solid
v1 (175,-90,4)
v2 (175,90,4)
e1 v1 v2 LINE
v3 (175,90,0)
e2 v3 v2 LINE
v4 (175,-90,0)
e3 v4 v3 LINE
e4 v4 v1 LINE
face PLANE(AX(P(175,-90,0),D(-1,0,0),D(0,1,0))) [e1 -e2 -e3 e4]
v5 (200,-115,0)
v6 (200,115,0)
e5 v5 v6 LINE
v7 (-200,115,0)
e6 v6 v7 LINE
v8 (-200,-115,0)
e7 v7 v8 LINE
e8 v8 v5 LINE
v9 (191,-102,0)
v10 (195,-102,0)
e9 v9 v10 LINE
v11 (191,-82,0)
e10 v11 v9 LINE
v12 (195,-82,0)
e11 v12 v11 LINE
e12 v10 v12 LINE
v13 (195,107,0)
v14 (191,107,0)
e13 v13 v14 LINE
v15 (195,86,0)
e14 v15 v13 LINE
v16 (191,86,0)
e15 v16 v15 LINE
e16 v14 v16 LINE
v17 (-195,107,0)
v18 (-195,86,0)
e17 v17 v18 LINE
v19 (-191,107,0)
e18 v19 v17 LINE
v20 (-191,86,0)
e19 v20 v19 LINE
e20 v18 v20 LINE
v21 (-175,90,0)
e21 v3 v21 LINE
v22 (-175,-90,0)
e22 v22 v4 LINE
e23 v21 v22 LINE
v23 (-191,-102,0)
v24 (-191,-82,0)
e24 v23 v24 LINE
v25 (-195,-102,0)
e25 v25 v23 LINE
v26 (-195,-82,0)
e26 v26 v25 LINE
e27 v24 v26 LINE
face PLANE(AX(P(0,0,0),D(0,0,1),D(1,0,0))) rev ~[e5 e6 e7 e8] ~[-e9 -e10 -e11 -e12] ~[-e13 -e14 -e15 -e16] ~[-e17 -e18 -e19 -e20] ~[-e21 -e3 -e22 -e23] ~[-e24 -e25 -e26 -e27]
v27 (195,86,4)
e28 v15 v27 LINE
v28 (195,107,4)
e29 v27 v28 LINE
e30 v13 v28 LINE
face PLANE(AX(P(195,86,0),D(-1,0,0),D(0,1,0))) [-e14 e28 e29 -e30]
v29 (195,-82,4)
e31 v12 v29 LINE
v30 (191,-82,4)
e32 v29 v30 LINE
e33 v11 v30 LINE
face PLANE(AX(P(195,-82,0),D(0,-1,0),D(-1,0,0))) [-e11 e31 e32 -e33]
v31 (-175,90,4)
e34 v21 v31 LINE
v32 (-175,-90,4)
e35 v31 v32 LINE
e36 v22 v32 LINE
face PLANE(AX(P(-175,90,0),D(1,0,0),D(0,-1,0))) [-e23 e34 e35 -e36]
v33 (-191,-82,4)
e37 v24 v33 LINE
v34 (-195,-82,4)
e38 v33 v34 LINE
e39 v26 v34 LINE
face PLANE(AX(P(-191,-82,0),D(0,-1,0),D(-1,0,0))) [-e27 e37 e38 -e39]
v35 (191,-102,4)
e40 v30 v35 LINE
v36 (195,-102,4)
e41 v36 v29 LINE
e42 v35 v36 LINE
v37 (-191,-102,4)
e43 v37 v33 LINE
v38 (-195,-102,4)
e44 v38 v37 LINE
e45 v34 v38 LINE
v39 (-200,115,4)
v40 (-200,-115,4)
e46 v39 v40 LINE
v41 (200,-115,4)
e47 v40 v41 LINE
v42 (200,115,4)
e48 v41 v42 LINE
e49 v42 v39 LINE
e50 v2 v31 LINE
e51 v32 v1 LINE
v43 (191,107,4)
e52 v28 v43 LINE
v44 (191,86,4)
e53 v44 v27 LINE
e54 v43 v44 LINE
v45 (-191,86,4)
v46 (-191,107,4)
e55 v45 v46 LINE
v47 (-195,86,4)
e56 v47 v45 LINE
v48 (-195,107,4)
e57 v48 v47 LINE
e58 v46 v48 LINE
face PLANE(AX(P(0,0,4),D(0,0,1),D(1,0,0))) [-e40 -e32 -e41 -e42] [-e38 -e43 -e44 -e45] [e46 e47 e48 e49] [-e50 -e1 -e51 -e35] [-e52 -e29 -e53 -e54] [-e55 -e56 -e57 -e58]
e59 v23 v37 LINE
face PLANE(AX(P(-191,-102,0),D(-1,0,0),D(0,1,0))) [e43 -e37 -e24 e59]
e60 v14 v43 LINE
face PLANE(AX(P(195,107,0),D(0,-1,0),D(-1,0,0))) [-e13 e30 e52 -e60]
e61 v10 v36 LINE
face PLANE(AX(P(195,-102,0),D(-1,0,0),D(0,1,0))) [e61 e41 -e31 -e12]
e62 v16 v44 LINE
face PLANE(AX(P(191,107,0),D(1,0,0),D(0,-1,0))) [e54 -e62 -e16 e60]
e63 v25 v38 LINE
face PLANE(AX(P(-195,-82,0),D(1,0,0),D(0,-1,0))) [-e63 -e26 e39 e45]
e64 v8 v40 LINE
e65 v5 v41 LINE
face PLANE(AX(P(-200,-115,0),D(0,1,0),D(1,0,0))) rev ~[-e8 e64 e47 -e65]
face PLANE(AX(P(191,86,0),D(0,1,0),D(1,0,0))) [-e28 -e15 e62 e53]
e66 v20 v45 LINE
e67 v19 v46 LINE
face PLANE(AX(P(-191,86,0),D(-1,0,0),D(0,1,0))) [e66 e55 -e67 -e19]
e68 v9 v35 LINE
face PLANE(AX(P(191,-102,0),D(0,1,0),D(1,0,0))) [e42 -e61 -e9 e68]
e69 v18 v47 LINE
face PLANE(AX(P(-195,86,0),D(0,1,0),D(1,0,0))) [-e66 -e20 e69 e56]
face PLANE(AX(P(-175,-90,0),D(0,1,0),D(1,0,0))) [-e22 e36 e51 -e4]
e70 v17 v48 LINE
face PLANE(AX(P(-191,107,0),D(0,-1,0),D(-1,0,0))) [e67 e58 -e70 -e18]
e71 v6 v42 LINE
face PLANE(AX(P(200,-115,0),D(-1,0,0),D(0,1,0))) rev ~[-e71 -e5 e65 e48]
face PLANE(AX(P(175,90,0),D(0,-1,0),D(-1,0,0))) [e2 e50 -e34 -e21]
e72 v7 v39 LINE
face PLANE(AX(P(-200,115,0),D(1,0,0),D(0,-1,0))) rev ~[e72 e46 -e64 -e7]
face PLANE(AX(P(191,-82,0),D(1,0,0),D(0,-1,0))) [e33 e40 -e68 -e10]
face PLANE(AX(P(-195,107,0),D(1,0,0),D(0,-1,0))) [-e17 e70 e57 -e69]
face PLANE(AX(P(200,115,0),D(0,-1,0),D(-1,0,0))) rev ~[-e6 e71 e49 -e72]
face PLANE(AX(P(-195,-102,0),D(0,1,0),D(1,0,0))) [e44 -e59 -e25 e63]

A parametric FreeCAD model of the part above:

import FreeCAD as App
import Part
import Sketcher
from FreeCAD import Vector


def add_polygon(sketch, points):
    """Adds a closed chain of lines whose ends are joined by coincident constraints."""
    first, n = sketch.GeometryCount, len(points)
    for a, b in zip(points, points[1:] + points[:1]):
        sketch.addGeometry(Part.LineSegment(App.Vector(*a, 0), App.Vector(*b, 0)), False)
    for i in range(n):
        sketch.addConstraint(Sketcher.Constraint("Coincident", first + i, 2, first + (i + 1) % n, 1))

doc = App.newDocument("Part")
params = doc.addObject("Spreadsheet::Sheet", "Params")
for row, (alias, value) in enumerate([
    ("sketch1_width", "400 mm"),
    ("sketch1_width2", "4 mm"),
    ("sketch1_width3", "350 mm"),
    ("sketch1_height", "230 mm"),
    ("sketch1_height2", "20 mm"),
    ("pad1_length", "4 mm"),
], start=1):
    params.set(f"A{row}", alias)
    params.set(f"B{row}", "=" + value)
    params.setAlias(f"B{row}", alias)

body = doc.addObject("PartDesign::Body", "Body")

# Sketch on XY plane
sketch1 = body.newObject("Sketcher::SketchObject", "Sketch")
sketch1.AttachmentSupport = (doc.getObject("XY_Plane"), [""])
sketch1.MapMode = "FlatFace"
add_polygon(sketch1, [(200, -115), (200, 115), (-200, 115), (-200, -115)])  # lines 0-3
add_polygon(sketch1, [(-195, -102), (-195, -82), (-191, -82), (-191, -102)])  # lines 4-7
add_polygon(sketch1, [(191, -82), (195, -82), (195, -102), (191, -102)])  # lines 8-11
add_polygon(sketch1, [(-195, 86), (-195, 107), (-191, 107), (-191, 86)])  # lines 12-15
add_polygon(sketch1, [(-175, 90), (175, 90), (175, -90), (-175, -90)])  # lines 16-19
add_polygon(sketch1, [(191, 86), (191, 107), (195, 107), (195, 86)])  # lines 20-23
sketch1.addConstraint(Sketcher.Constraint("Vertical", 0))
sketch1.addConstraint(Sketcher.Constraint("Horizontal", 1))
sketch1.addConstraint(Sketcher.Constraint("Vertical", 2))
sketch1.addConstraint(Sketcher.Constraint("Horizontal", 3))
sketch1.addConstraint(Sketcher.Constraint("Vertical", 4))
sketch1.addConstraint(Sketcher.Constraint("Horizontal", 5))
sketch1.addConstraint(Sketcher.Constraint("Vertical", 6))
sketch1.addConstraint(Sketcher.Constraint("Horizontal", 7))
sketch1.addConstraint(Sketcher.Constraint("Horizontal", 8))
sketch1.addConstraint(Sketcher.Constraint("Vertical", 9))
sketch1.addConstraint(Sketcher.Constraint("Horizontal", 10))
sketch1.addConstraint(Sketcher.Constraint("Vertical", 11))
sketch1.addConstraint(Sketcher.Constraint("Vertical", 12))
sketch1.addConstraint(Sketcher.Constraint("Horizontal", 13))
sketch1.addConstraint(Sketcher.Constraint("Vertical", 14))
sketch1.addConstraint(Sketcher.Constraint("Horizontal", 15))
sketch1.addConstraint(Sketcher.Constraint("Horizontal", 16))
sketch1.addConstraint(Sketcher.Constraint("Vertical", 17))
sketch1.addConstraint(Sketcher.Constraint("Horizontal", 18))
sketch1.addConstraint(Sketcher.Constraint("Vertical", 19))
sketch1.addConstraint(Sketcher.Constraint("Vertical", 20))
sketch1.addConstraint(Sketcher.Constraint("Horizontal", 21))
sketch1.addConstraint(Sketcher.Constraint("Vertical", 22))
sketch1.addConstraint(Sketcher.Constraint("Horizontal", 23))
sketch1.addConstraint(Sketcher.Constraint("Symmetric", 0, 2, 2, 2, -1, 1))
sketch1.addConstraint(Sketcher.Constraint("Symmetric", 16, 2, 18, 2, -1, 1))
sketch1.addConstraint(Sketcher.Constraint("Symmetric", 4, 2, 8, 2, -2))
sketch1.addConstraint(Sketcher.Constraint("Symmetric", 6, 2, 10, 2, -2))
sketch1.addConstraint(Sketcher.Constraint("Symmetric", 13, 2, 20, 2, -2))
sketch1.addConstraint(Sketcher.Constraint("Symmetric", 15, 2, 22, 2, -2))
sketch1.addConstraint(Sketcher.Constraint("Vertical", 7, 2, 12, 2))
sketch1.addConstraint(Sketcher.Constraint("Vertical", 6, 2, 13, 2))
sketch1.addConstraint(Sketcher.Constraint("DistanceX", 1, 2, 1, 1, 400.0))
sketch1.addConstraint(Sketcher.Constraint("DistanceX", 5, 1, 5, 2, 4.0))
sketch1.addConstraint(Sketcher.Constraint("DistanceX", 16, 1, 16, 2, 350.0))
sketch1.addConstraint(Sketcher.Constraint("DistanceY", 0, 1, 0, 2, 230.0))
sketch1.addConstraint(Sketcher.Constraint("DistanceY", 4, 1, 4, 2, 20.0))
sketch1.addConstraint(Sketcher.Constraint("DistanceY", 12, 1, 12, 2, 21.0))
sketch1.addConstraint(Sketcher.Constraint("DistanceY", 17, 2, 17, 1, 180.0))
sketch1.addConstraint(Sketcher.Constraint("DistanceX", 4, 2, -1, 1, 195.0))
sketch1.addConstraint(Sketcher.Constraint("DistanceY", 4, 2, -1, 1, 82.0))
sketch1.addConstraint(Sketcher.Constraint("DistanceY", -1, 1, 12, 2, 107.0))
sketch1.setExpression("Constraints[56]", "Params.sketch1_width")
sketch1.setExpression("Constraints[57]", "Params.sketch1_width2")
sketch1.setExpression("Constraints[58]", "Params.sketch1_width3")
sketch1.setExpression("Constraints[59]", "Params.sketch1_height")
sketch1.setExpression("Constraints[60]", "Params.sketch1_height2")
pad1 = body.newObject("PartDesign::Pad", "Pad")
pad1.Profile = sketch1
pad1.setExpression("Length", "Params.pad1_length")

doc.recompute()
